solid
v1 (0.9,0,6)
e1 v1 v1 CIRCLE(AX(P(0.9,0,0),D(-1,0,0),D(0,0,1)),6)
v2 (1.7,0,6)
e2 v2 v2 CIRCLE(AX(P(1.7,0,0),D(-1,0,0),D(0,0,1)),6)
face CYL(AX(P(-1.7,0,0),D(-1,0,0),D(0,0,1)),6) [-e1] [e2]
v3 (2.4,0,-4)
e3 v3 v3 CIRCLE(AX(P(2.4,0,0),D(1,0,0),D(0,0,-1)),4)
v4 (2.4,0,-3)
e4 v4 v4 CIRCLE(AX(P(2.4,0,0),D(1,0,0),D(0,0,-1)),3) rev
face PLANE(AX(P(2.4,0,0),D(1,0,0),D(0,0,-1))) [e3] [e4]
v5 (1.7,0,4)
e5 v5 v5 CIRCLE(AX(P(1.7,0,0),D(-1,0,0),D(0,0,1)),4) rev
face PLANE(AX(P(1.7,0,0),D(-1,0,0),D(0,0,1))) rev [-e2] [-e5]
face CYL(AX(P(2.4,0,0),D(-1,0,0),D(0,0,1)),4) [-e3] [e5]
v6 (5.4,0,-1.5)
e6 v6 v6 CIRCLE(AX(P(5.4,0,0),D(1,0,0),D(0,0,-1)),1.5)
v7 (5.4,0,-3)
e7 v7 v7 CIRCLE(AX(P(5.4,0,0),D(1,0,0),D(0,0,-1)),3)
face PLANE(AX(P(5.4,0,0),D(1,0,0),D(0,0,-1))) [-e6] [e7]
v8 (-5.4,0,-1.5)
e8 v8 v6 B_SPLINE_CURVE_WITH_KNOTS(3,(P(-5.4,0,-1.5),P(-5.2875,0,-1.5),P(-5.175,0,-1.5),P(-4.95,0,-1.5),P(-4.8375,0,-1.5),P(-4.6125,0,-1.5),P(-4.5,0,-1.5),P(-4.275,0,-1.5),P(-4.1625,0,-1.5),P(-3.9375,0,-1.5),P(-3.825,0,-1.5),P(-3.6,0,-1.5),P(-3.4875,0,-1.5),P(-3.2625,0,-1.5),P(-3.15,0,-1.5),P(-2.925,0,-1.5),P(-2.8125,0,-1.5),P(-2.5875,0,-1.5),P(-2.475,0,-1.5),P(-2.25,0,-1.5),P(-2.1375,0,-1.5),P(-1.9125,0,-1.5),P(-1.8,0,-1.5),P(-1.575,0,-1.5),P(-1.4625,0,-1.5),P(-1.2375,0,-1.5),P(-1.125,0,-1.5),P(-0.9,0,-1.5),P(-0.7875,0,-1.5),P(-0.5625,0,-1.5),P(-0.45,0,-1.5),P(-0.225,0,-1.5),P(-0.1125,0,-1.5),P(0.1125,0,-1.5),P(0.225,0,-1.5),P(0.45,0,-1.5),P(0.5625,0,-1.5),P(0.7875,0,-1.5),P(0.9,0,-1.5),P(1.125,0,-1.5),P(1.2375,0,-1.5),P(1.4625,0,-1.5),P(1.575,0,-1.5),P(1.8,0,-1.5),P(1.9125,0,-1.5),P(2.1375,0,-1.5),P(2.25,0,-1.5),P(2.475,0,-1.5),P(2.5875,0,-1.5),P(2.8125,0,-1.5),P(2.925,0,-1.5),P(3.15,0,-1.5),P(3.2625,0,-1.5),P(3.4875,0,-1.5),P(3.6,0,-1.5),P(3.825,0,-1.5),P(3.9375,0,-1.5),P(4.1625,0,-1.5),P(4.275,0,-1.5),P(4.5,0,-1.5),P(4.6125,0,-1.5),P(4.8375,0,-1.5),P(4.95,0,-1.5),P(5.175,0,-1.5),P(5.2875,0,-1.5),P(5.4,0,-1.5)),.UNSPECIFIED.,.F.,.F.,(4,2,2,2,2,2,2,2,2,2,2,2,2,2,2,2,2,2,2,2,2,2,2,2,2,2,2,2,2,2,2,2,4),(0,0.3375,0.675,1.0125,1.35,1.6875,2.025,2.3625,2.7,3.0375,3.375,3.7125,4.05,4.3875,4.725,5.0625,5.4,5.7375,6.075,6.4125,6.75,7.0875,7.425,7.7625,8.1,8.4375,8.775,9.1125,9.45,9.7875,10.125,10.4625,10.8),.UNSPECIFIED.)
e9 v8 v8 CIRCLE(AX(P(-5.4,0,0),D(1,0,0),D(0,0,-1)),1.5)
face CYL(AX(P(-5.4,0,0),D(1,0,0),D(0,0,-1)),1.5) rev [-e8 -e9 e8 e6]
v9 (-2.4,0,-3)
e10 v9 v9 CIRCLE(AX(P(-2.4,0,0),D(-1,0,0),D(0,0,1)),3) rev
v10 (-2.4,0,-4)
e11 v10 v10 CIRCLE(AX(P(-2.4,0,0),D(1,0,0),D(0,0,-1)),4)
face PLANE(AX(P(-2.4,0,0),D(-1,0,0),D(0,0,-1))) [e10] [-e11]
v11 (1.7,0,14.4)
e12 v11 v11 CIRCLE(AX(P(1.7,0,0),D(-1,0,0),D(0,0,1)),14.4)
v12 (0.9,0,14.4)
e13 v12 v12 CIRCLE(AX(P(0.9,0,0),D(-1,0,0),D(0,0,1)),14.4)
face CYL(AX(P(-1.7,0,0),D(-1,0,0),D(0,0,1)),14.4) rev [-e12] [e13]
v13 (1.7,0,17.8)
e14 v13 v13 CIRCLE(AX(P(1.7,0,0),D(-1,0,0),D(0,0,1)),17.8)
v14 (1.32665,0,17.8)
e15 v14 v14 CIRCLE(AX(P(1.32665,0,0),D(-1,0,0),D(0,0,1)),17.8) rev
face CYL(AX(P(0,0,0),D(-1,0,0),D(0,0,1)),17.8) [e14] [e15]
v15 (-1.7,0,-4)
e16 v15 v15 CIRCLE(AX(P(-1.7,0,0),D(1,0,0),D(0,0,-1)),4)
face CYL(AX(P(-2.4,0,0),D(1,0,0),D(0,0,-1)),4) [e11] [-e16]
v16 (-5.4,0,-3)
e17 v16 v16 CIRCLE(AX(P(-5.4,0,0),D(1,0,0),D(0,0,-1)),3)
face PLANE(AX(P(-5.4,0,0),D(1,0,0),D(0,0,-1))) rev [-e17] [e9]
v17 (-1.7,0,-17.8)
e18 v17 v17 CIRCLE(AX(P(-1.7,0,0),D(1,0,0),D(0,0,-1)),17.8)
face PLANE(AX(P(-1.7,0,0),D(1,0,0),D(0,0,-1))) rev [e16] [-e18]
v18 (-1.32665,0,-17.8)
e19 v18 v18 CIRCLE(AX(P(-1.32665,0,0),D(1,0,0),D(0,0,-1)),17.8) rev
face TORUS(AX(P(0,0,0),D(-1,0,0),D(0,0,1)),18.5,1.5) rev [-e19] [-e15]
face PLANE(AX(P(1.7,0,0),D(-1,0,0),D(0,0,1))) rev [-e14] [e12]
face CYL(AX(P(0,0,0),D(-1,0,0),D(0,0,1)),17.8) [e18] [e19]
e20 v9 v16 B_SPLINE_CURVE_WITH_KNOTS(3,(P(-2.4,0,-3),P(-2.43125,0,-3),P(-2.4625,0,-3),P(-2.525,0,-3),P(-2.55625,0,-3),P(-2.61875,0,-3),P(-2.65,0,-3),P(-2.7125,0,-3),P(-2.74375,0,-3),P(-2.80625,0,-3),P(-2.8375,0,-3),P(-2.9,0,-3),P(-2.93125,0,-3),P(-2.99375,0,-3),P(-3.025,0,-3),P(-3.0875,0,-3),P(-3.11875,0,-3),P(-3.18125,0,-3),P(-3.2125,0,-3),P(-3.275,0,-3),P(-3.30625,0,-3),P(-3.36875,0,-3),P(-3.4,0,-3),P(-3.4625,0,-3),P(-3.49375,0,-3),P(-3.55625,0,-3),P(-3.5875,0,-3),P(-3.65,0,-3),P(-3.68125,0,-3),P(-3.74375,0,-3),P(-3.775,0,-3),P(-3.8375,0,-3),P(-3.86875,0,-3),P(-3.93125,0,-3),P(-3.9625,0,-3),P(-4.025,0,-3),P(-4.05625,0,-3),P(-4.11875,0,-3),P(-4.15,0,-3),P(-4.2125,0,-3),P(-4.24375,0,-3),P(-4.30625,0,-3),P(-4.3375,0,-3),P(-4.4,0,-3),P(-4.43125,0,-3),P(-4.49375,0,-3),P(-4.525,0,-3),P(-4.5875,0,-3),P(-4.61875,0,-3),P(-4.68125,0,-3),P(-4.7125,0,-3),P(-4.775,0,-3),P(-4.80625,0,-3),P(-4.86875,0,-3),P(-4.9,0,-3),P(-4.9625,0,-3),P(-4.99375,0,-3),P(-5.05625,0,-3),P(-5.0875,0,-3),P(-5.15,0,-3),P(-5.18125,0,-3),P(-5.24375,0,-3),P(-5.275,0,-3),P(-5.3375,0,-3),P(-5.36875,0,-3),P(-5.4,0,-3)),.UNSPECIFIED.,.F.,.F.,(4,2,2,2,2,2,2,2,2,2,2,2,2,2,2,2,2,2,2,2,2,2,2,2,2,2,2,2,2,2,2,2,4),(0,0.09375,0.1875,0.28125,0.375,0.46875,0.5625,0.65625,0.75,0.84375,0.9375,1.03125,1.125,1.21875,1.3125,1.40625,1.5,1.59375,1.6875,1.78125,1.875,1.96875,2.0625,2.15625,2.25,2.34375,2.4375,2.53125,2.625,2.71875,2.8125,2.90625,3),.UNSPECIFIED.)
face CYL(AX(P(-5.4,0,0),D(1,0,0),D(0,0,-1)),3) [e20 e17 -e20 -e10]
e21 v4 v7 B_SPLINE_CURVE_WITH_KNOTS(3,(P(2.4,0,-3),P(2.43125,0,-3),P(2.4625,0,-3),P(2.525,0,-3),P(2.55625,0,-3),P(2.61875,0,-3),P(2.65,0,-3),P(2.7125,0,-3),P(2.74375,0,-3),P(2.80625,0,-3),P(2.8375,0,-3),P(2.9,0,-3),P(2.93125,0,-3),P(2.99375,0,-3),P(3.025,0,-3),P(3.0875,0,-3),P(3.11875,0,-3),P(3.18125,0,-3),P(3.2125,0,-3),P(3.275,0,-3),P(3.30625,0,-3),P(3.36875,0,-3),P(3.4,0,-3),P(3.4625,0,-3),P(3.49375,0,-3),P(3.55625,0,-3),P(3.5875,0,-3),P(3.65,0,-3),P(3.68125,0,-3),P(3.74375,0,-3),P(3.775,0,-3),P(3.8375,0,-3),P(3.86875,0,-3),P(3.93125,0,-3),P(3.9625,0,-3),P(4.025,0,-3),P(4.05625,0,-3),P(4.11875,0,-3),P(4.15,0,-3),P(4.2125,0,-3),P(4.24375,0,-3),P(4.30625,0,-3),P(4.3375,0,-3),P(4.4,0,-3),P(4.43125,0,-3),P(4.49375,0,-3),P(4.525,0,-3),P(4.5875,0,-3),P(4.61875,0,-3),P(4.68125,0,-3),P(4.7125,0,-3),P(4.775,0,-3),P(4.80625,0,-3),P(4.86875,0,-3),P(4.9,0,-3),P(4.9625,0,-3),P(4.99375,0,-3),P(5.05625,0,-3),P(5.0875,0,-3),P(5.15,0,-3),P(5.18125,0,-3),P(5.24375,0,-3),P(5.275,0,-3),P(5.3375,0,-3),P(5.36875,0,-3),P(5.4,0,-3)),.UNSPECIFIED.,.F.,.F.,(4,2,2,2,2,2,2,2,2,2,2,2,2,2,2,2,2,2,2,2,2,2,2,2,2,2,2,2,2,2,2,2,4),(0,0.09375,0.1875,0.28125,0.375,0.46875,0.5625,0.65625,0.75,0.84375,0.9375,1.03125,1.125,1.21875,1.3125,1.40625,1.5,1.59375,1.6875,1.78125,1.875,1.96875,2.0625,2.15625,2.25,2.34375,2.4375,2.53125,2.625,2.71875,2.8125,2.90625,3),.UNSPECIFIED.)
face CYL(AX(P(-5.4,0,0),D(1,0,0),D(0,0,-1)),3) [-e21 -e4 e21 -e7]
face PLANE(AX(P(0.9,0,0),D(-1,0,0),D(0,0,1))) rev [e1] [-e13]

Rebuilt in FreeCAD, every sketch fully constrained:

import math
import FreeCAD as App
import Part
import Sketcher
from FreeCAD import Vector
Q = App.Units.Quantity

doc = App.newDocument("Part")
params = doc.addObject("Spreadsheet::Sheet", "Params")
for row, (alias, value) in enumerate([
    ("sketch1_radius", "1.5 mm"),
    ("sketch1_height", "6 mm"),
    ("sketch1_width", "0.2 mm"),
    ("sketch1_width2", "0.8 mm"),
    ("sketch1_height2", "18.5 mm"),
    ("revolution_angle", "360 deg"),
    ("sketch2_diameter", "6 mm"),
    ("pad1_length", "5.4 mm"),
    ("pad1_length2", "5.4 mm"),
    ("sketch3_diameter", "8 mm"),
    ("pad2_length", "0.7 mm"),
    ("sketch4_diameter", "3 mm"),
    ("sketch5_height", "0.7 mm"),
    ("groove_angle", "360 deg"),
], start=1):
    params.set(f"A{row}", alias)
    params.set(f"B{row}", "=" + value)
    params.setAlias(f"B{row}", alias)

body = doc.addObject("PartDesign::Body", "Body")

sketch1 = doc.addObject("Sketcher::SketchObject", "Sketch")
body.addObject(sketch1)
sketch1.AttachmentSupport = (doc.XY_Plane, [""])
sketch1.MapMode = "FlatFace"
sketch1.addGeometry([
    Part.ArcOfCircle(Part.Circle(Vector(0, 18.5, 0), Vector(0, 0, 1), 1.5), math.radians(180), math.radians(360)),
    Part.LineSegment(Vector(-1.5, 18.5, 0), Vector(-1.7, 18.5, 0)),
    Part.LineSegment(Vector(-1.7, 18.5, 0), Vector(-1.7, 0, 0)),
    Part.LineSegment(Vector(-1.7, 0, 0), Vector(1.7, 0, 0)),
    Part.LineSegment(Vector(1.7, 0, 0), Vector(1.7, 6, 0)),
    Part.LineSegment(Vector(1.7, 6, 0), Vector(0.9, 6, 0)),
    Part.LineSegment(Vector(0.9, 6, 0), Vector(0.9, 14.4, 0)),
    Part.LineSegment(Vector(0.9, 14.4, 0), Vector(1.7, 14.4, 0)),
    Part.LineSegment(Vector(1.7, 14.4, 0), Vector(1.7, 18.5, 0)),
    Part.LineSegment(Vector(1.7, 18.5, 0), Vector(1.5, 18.5, 0)),
], False)
sketch1.addConstraint([
    Sketcher.Constraint("Coincident", 0, 1, 1, 1),
    Sketcher.Constraint("Coincident", 1, 2, 2, 1),
    Sketcher.Constraint("Coincident", 2, 2, 3, 1),
    Sketcher.Constraint("Coincident", 3, 2, 4, 1),
    Sketcher.Constraint("Coincident", 4, 2, 5, 1),
    Sketcher.Constraint("Coincident", 5, 2, 6, 1),
    Sketcher.Constraint("Coincident", 6, 2, 7, 1),
    Sketcher.Constraint("Coincident", 7, 2, 8, 1),
    Sketcher.Constraint("Coincident", 8, 2, 9, 1),
    Sketcher.Constraint("Coincident", 9, 2, 0, 2),
    Sketcher.Constraint("Horizontal", 1),
    Sketcher.Constraint("Vertical", 2),
    Sketcher.Constraint("Horizontal", 3),
    Sketcher.Constraint("Vertical", 4),
    Sketcher.Constraint("Horizontal", 5),
    Sketcher.Constraint("Vertical", 6),
    Sketcher.Constraint("Horizontal", 7),
    Sketcher.Constraint("Vertical", 8),
    Sketcher.Constraint("Horizontal", 9),
    Sketcher.Constraint("Symmetric", 2, 2, 3, 2, -1, 1),
    Sketcher.Constraint("Symmetric", 1, 2, 8, 2, -2),
    Sketcher.Constraint("PointOnObject", 0, 3, -2),
    Sketcher.Constraint("Radius", 0, Q("1.5 mm")),
    Sketcher.Constraint("DistanceY", 4, 1, 4, 2, Q("6 mm")),
    Sketcher.Constraint("DistanceX", 1, 2, 1, 1, Q("0.2 mm")),
    Sketcher.Constraint("DistanceX", 5, 2, 5, 1, Q("0.8 mm")),
    Sketcher.Constraint("DistanceY", 2, 2, 2, 1, Q("18.5 mm")),
    Sketcher.Constraint("DistanceY", 6, 1, 6, 2, Q("8.4 mm")),
    Sketcher.Constraint("DistanceY", -1, 1, 0, 3, Q("18.5 mm")),
])
sketch1.setExpression("Constraints[22]", "Params.sketch1_radius")
sketch1.setExpression("Constraints[23]", "Params.sketch1_height")
sketch1.setExpression("Constraints[24]", "Params.sketch1_width")
sketch1.setExpression("Constraints[25]", "Params.sketch1_width2")
sketch1.setExpression("Constraints[26]", "Params.sketch1_height2")
revolution = doc.addObject("PartDesign::Revolution", "Revolution")
body.addObject(revolution)
revolution.Profile = sketch1
revolution.ReferenceAxis = (sketch1, ["H_Axis"])
revolution.setExpression("Angle", "Params.revolution_angle")

sketch2 = doc.addObject("Sketcher::SketchObject", "Sketch001")
body.addObject(sketch2)
sketch2.AttachmentSupport = (doc.YZ_Plane, [""])
sketch2.MapMode = "FlatFace"
sketch2.addGeometry(Part.Circle(Vector(0, 0, 0), Vector(0, 0, 1), 3), False)
sketch2.addConstraint([
    Sketcher.Constraint("Coincident", 0, 3, -1, 1),
    Sketcher.Constraint("Diameter", 0, Q("6 mm")),
])
sketch2.setExpression("Constraints[1]", "Params.sketch2_diameter")
pad1 = doc.addObject("PartDesign::Pad", "Pad")
body.addObject(pad1)
pad1.Profile = sketch2
pad1.Type = "TwoLengths"
pad1.setExpression("Length", "Params.pad1_length")
pad1.setExpression("Length2", "Params.pad1_length2")

sketch3 = doc.addObject("Sketcher::SketchObject", "Sketch002")
body.addObject(sketch3)
sketch3.AttachmentSupport = (doc.YZ_Plane, [""])
sketch3.MapMode = "FlatFace"
sketch3.AttachmentOffset = App.Placement(Vector(0, 0, 1.7), App.Rotation())
sketch3.addGeometry(Part.Circle(Vector(0, 0, 0), Vector(0, 0, 1), 4), False)
sketch3.addConstraint([
    Sketcher.Constraint("Coincident", 0, 3, -1, 1),
    Sketcher.Constraint("Diameter", 0, Q("8 mm")),
])
sketch3.setExpression("Constraints[1]", "Params.sketch3_diameter")
pad2 = doc.addObject("PartDesign::Pad", "Pad001")
body.addObject(pad2)
pad2.Profile = sketch3
pad2.setExpression("Length", "Params.pad2_length")
doc.recompute()

mirrored = doc.addObject("PartDesign::Mirrored", "Mirrored")
body.addObject(mirrored)
mirrored.Originals = [pad2]
mirrored.MirrorPlane = (doc.YZ_Plane, [""])
body.Tip = mirrored

sketch4 = doc.addObject("Sketcher::SketchObject", "Sketch003")
body.addObject(sketch4)
sketch4.AttachmentSupport = (doc.YZ_Plane, [""])
sketch4.MapMode = "FlatFace"
sketch4.addGeometry(Part.Circle(Vector(0, 0, 0), Vector(0, 0, 1), 1.5), False)
sketch4.addConstraint([
    Sketcher.Constraint("Coincident", 0, 3, -1, 1),
    Sketcher.Constraint("Diameter", 0, Q("3 mm")),
])
sketch4.setExpression("Constraints[1]", "Params.sketch4_diameter")
pocket1 = doc.addObject("PartDesign::Pocket", "Pocket")
body.addObject(pocket1)
pocket1.Profile = sketch4
pocket1.Type = "ThroughAll"
pocket1.Midplane = True

sketch5 = doc.addObject("Sketcher::SketchObject", "Sketch004")
body.addObject(sketch5)
sketch5.AttachmentSupport = (doc.XY_Plane, [""])
sketch5.MapMode = "FlatFace"
sketch5.addGeometry([
    Part.LineSegment(Vector(-2.5, 18.5, 0), Vector(-2.5, 17.8, 0)),
    Part.LineSegment(Vector(-2.5, 17.8, 0), Vector(2.5, 17.8, 0)),
    Part.LineSegment(Vector(2.5, 17.8, 0), Vector(2.5, 18.5, 0)),
    Part.LineSegment(Vector(2.5, 18.5, 0), Vector(-2.5, 18.5, 0)),
], False)
sketch5.addConstraint([
    Sketcher.Constraint("Coincident", 0, 2, 1, 1),
    Sketcher.Constraint("Coincident", 1, 2, 2, 1),
    Sketcher.Constraint("Coincident", 2, 2, 3, 1),
    Sketcher.Constraint("Coincident", 3, 2, 0, 1),
    Sketcher.Constraint("Vertical", 0),
    Sketcher.Constraint("Horizontal", 1),
    Sketcher.Constraint("Vertical", 2),
    Sketcher.Constraint("Horizontal", 3),
    Sketcher.Constraint("DistanceY", 0, 2, 0, 1, Q("0.7 mm")),
    Sketcher.Constraint("DistanceY", -1, 1, 0, 2, Q("17.8 mm")),
    Sketcher.Constraint("DistanceX", 1, 1, 1, 2, Q("4.964109 mm")),
    Sketcher.Constraint("DistanceX", 0, 2, -1, 1, Q("2.482054 mm")),
])
sketch5.setExpression("Constraints[8]", "Params.sketch5_height")
groove = doc.addObject("PartDesign::Groove", "Groove")
body.addObject(groove)
groove.Profile = sketch5
groove.ReferenceAxis = (sketch5, ["H_Axis"])
groove.setExpression("Angle", "Params.groove_angle")

doc.recompute()
